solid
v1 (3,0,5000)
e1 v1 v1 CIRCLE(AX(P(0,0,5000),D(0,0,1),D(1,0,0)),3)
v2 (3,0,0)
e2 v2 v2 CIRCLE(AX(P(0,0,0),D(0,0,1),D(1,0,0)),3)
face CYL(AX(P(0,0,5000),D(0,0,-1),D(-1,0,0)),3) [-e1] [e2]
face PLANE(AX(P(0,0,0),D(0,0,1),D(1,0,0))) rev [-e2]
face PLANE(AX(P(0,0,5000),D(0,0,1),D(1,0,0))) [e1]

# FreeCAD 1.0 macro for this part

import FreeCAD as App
import Part
import Sketcher
from FreeCAD import Vector
Q = App.Units.Quantity

doc = App.newDocument("Part")
body = doc.addObject("PartDesign::Body", "Body")

# Sketch on XY plane
sketch1 = body.newObject("Sketcher::SketchObject", "Sketch")
sketch1.AttachmentSupport = (doc.getObject("XY_Plane"), [""])
sketch1.MapMode = "FlatFace"
sketch1.addGeometry(Part.Circle(Vector(0, 0, 0), Vector(0, 0, 1), 3), False)
sketch1.addConstraint([
    Sketcher.Constraint("Coincident", 0, 3, -1, 1),
    Sketcher.Constraint("Diameter", 0, Q("6 mm")),
])
pad1 = body.newObject("PartDesign::Pad", "Pad")
pad1.Profile = sketch1
pad1.Length = 5000

doc.recompute()
